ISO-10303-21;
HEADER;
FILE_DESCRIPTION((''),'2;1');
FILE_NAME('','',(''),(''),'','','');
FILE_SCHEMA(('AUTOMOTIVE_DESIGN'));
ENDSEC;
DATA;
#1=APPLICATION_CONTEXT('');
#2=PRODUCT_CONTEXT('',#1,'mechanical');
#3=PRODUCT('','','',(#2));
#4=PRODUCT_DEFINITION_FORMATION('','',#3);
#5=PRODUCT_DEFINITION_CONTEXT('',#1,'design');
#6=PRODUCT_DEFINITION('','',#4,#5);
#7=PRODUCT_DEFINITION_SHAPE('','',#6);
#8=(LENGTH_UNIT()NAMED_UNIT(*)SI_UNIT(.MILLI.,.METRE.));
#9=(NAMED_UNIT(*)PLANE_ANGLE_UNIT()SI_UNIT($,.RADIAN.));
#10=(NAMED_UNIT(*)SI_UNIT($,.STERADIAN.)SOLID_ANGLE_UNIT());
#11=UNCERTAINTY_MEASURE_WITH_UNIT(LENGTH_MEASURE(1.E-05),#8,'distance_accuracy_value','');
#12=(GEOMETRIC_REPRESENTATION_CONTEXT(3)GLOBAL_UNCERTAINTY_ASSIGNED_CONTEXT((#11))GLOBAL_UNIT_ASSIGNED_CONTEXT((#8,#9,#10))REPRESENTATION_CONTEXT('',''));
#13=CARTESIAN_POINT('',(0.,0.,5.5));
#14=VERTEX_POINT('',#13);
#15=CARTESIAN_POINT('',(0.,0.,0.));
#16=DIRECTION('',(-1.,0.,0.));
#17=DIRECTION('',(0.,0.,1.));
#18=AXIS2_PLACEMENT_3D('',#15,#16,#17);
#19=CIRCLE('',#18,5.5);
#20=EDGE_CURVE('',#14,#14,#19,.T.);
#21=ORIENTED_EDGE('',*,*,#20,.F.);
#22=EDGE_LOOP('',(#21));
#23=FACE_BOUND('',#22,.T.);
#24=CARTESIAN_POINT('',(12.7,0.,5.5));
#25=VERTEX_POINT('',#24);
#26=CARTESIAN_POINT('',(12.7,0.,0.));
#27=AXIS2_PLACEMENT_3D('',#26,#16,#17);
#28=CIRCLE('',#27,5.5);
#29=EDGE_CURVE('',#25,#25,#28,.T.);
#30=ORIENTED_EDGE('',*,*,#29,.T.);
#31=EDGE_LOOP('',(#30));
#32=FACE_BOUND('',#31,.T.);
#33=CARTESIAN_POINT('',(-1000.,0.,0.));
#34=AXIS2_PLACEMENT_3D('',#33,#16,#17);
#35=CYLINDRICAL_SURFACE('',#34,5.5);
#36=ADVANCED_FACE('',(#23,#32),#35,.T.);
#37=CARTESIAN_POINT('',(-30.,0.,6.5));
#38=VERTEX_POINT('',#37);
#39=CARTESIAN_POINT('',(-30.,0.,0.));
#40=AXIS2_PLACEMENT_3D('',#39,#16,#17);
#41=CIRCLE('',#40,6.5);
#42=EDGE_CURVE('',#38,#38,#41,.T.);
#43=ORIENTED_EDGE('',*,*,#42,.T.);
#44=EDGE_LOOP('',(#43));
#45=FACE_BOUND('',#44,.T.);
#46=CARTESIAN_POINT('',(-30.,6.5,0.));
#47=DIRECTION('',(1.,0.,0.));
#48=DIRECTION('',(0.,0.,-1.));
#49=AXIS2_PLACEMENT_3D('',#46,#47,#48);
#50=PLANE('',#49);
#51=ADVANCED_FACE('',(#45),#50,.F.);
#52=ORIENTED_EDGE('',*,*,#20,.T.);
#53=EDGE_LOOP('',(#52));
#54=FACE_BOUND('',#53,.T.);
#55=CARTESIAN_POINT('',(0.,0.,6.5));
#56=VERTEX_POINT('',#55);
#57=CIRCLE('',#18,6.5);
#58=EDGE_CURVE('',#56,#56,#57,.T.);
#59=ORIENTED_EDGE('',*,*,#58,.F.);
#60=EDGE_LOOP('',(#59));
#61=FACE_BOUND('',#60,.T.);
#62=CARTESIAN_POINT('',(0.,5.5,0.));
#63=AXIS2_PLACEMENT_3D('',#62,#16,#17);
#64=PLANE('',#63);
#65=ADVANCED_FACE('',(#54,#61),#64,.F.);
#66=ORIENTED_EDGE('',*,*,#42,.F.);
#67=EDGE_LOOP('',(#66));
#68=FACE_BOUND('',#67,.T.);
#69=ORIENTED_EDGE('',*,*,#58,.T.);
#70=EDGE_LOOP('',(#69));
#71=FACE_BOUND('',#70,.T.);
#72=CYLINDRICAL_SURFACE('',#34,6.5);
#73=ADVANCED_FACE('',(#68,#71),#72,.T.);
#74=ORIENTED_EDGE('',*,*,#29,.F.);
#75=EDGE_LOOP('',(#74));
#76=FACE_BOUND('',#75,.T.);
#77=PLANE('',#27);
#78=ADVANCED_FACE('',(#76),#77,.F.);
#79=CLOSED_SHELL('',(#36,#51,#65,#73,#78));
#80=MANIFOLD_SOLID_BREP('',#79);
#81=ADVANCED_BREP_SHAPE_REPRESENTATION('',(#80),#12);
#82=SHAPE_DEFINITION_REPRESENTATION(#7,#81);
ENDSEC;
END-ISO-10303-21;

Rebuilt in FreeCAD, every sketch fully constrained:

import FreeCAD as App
import Part
import Sketcher
Q = App.Units.Quantity

doc = App.newDocument("Part")
body = doc.addObject("PartDesign::Body", "Body")

# Sketch on XY plane
sketch1 = body.newObject("Sketcher::SketchObject", "Sketch")
sketch1.AttachmentSupport = (doc.getObject("XY_Plane"), [""])
sketch1.MapMode = "FlatFace"
sketch1.addGeometry([
    Part.LineSegment(App.Vector(12.7, 0, 0), App.Vector(12.7, 5.5, 0)),  # 0
    Part.LineSegment(App.Vector(12.7, 5.5, 0), App.Vector(0, 5.5, 0)),  # 1
    Part.LineSegment(App.Vector(0, 5.5, 0), App.Vector(0, 6.5, 0)),  # 2
    Part.LineSegment(App.Vector(0, 6.5, 0), App.Vector(-30, 6.5, 0)),  # 3
    Part.LineSegment(App.Vector(-30, 6.5, 0), App.Vector(-30, 0, 0)),  # 4
    Part.LineSegment(App.Vector(-30, 0, 0), App.Vector(12.7, 0, 0)),  # 5
], False)
sketch1.addConstraint([
    Sketcher.Constraint("Coincident", 0, 2, 1, 1),
    Sketcher.Constraint("Coincident", 1, 2, 2, 1),
    Sketcher.Constraint("Coincident", 2, 2, 3, 1),
    Sketcher.Constraint("Coincident", 3, 2, 4, 1),
    Sketcher.Constraint("Coincident", 4, 2, 5, 1),
    Sketcher.Constraint("Coincident", 5, 2, 0, 1),
    Sketcher.Constraint("Vertical", 0),
    Sketcher.Constraint("Horizontal", 1),
    Sketcher.Constraint("Vertical", 2),
    Sketcher.Constraint("Horizontal", 3),
    Sketcher.Constraint("Vertical", 4),
    Sketcher.Constraint("Horizontal", 5),
    Sketcher.Constraint("PointOnObject", 1, 2, -2),
    Sketcher.Constraint("PointOnObject", 4, 2, -1),
    Sketcher.Constraint("DistanceX", 3, 2, 3, 1, Q("30 mm")),
    Sketcher.Constraint("DistanceY", 2, 1, 2, 2, Q("1 mm")),
    Sketcher.Constraint("DistanceX", 1, 2, 1, 1, Q("12.7 mm")),
    Sketcher.Constraint("DistanceY", 0, 1, 0, 2, Q("5.5 mm")),
])
revolution = body.newObject("PartDesign::Revolution", "Revolution")
revolution.Profile = sketch1
revolution.ReferenceAxis = (sketch1, ["H_Axis"])
revolution.Angle = 360

doc.recompute()
